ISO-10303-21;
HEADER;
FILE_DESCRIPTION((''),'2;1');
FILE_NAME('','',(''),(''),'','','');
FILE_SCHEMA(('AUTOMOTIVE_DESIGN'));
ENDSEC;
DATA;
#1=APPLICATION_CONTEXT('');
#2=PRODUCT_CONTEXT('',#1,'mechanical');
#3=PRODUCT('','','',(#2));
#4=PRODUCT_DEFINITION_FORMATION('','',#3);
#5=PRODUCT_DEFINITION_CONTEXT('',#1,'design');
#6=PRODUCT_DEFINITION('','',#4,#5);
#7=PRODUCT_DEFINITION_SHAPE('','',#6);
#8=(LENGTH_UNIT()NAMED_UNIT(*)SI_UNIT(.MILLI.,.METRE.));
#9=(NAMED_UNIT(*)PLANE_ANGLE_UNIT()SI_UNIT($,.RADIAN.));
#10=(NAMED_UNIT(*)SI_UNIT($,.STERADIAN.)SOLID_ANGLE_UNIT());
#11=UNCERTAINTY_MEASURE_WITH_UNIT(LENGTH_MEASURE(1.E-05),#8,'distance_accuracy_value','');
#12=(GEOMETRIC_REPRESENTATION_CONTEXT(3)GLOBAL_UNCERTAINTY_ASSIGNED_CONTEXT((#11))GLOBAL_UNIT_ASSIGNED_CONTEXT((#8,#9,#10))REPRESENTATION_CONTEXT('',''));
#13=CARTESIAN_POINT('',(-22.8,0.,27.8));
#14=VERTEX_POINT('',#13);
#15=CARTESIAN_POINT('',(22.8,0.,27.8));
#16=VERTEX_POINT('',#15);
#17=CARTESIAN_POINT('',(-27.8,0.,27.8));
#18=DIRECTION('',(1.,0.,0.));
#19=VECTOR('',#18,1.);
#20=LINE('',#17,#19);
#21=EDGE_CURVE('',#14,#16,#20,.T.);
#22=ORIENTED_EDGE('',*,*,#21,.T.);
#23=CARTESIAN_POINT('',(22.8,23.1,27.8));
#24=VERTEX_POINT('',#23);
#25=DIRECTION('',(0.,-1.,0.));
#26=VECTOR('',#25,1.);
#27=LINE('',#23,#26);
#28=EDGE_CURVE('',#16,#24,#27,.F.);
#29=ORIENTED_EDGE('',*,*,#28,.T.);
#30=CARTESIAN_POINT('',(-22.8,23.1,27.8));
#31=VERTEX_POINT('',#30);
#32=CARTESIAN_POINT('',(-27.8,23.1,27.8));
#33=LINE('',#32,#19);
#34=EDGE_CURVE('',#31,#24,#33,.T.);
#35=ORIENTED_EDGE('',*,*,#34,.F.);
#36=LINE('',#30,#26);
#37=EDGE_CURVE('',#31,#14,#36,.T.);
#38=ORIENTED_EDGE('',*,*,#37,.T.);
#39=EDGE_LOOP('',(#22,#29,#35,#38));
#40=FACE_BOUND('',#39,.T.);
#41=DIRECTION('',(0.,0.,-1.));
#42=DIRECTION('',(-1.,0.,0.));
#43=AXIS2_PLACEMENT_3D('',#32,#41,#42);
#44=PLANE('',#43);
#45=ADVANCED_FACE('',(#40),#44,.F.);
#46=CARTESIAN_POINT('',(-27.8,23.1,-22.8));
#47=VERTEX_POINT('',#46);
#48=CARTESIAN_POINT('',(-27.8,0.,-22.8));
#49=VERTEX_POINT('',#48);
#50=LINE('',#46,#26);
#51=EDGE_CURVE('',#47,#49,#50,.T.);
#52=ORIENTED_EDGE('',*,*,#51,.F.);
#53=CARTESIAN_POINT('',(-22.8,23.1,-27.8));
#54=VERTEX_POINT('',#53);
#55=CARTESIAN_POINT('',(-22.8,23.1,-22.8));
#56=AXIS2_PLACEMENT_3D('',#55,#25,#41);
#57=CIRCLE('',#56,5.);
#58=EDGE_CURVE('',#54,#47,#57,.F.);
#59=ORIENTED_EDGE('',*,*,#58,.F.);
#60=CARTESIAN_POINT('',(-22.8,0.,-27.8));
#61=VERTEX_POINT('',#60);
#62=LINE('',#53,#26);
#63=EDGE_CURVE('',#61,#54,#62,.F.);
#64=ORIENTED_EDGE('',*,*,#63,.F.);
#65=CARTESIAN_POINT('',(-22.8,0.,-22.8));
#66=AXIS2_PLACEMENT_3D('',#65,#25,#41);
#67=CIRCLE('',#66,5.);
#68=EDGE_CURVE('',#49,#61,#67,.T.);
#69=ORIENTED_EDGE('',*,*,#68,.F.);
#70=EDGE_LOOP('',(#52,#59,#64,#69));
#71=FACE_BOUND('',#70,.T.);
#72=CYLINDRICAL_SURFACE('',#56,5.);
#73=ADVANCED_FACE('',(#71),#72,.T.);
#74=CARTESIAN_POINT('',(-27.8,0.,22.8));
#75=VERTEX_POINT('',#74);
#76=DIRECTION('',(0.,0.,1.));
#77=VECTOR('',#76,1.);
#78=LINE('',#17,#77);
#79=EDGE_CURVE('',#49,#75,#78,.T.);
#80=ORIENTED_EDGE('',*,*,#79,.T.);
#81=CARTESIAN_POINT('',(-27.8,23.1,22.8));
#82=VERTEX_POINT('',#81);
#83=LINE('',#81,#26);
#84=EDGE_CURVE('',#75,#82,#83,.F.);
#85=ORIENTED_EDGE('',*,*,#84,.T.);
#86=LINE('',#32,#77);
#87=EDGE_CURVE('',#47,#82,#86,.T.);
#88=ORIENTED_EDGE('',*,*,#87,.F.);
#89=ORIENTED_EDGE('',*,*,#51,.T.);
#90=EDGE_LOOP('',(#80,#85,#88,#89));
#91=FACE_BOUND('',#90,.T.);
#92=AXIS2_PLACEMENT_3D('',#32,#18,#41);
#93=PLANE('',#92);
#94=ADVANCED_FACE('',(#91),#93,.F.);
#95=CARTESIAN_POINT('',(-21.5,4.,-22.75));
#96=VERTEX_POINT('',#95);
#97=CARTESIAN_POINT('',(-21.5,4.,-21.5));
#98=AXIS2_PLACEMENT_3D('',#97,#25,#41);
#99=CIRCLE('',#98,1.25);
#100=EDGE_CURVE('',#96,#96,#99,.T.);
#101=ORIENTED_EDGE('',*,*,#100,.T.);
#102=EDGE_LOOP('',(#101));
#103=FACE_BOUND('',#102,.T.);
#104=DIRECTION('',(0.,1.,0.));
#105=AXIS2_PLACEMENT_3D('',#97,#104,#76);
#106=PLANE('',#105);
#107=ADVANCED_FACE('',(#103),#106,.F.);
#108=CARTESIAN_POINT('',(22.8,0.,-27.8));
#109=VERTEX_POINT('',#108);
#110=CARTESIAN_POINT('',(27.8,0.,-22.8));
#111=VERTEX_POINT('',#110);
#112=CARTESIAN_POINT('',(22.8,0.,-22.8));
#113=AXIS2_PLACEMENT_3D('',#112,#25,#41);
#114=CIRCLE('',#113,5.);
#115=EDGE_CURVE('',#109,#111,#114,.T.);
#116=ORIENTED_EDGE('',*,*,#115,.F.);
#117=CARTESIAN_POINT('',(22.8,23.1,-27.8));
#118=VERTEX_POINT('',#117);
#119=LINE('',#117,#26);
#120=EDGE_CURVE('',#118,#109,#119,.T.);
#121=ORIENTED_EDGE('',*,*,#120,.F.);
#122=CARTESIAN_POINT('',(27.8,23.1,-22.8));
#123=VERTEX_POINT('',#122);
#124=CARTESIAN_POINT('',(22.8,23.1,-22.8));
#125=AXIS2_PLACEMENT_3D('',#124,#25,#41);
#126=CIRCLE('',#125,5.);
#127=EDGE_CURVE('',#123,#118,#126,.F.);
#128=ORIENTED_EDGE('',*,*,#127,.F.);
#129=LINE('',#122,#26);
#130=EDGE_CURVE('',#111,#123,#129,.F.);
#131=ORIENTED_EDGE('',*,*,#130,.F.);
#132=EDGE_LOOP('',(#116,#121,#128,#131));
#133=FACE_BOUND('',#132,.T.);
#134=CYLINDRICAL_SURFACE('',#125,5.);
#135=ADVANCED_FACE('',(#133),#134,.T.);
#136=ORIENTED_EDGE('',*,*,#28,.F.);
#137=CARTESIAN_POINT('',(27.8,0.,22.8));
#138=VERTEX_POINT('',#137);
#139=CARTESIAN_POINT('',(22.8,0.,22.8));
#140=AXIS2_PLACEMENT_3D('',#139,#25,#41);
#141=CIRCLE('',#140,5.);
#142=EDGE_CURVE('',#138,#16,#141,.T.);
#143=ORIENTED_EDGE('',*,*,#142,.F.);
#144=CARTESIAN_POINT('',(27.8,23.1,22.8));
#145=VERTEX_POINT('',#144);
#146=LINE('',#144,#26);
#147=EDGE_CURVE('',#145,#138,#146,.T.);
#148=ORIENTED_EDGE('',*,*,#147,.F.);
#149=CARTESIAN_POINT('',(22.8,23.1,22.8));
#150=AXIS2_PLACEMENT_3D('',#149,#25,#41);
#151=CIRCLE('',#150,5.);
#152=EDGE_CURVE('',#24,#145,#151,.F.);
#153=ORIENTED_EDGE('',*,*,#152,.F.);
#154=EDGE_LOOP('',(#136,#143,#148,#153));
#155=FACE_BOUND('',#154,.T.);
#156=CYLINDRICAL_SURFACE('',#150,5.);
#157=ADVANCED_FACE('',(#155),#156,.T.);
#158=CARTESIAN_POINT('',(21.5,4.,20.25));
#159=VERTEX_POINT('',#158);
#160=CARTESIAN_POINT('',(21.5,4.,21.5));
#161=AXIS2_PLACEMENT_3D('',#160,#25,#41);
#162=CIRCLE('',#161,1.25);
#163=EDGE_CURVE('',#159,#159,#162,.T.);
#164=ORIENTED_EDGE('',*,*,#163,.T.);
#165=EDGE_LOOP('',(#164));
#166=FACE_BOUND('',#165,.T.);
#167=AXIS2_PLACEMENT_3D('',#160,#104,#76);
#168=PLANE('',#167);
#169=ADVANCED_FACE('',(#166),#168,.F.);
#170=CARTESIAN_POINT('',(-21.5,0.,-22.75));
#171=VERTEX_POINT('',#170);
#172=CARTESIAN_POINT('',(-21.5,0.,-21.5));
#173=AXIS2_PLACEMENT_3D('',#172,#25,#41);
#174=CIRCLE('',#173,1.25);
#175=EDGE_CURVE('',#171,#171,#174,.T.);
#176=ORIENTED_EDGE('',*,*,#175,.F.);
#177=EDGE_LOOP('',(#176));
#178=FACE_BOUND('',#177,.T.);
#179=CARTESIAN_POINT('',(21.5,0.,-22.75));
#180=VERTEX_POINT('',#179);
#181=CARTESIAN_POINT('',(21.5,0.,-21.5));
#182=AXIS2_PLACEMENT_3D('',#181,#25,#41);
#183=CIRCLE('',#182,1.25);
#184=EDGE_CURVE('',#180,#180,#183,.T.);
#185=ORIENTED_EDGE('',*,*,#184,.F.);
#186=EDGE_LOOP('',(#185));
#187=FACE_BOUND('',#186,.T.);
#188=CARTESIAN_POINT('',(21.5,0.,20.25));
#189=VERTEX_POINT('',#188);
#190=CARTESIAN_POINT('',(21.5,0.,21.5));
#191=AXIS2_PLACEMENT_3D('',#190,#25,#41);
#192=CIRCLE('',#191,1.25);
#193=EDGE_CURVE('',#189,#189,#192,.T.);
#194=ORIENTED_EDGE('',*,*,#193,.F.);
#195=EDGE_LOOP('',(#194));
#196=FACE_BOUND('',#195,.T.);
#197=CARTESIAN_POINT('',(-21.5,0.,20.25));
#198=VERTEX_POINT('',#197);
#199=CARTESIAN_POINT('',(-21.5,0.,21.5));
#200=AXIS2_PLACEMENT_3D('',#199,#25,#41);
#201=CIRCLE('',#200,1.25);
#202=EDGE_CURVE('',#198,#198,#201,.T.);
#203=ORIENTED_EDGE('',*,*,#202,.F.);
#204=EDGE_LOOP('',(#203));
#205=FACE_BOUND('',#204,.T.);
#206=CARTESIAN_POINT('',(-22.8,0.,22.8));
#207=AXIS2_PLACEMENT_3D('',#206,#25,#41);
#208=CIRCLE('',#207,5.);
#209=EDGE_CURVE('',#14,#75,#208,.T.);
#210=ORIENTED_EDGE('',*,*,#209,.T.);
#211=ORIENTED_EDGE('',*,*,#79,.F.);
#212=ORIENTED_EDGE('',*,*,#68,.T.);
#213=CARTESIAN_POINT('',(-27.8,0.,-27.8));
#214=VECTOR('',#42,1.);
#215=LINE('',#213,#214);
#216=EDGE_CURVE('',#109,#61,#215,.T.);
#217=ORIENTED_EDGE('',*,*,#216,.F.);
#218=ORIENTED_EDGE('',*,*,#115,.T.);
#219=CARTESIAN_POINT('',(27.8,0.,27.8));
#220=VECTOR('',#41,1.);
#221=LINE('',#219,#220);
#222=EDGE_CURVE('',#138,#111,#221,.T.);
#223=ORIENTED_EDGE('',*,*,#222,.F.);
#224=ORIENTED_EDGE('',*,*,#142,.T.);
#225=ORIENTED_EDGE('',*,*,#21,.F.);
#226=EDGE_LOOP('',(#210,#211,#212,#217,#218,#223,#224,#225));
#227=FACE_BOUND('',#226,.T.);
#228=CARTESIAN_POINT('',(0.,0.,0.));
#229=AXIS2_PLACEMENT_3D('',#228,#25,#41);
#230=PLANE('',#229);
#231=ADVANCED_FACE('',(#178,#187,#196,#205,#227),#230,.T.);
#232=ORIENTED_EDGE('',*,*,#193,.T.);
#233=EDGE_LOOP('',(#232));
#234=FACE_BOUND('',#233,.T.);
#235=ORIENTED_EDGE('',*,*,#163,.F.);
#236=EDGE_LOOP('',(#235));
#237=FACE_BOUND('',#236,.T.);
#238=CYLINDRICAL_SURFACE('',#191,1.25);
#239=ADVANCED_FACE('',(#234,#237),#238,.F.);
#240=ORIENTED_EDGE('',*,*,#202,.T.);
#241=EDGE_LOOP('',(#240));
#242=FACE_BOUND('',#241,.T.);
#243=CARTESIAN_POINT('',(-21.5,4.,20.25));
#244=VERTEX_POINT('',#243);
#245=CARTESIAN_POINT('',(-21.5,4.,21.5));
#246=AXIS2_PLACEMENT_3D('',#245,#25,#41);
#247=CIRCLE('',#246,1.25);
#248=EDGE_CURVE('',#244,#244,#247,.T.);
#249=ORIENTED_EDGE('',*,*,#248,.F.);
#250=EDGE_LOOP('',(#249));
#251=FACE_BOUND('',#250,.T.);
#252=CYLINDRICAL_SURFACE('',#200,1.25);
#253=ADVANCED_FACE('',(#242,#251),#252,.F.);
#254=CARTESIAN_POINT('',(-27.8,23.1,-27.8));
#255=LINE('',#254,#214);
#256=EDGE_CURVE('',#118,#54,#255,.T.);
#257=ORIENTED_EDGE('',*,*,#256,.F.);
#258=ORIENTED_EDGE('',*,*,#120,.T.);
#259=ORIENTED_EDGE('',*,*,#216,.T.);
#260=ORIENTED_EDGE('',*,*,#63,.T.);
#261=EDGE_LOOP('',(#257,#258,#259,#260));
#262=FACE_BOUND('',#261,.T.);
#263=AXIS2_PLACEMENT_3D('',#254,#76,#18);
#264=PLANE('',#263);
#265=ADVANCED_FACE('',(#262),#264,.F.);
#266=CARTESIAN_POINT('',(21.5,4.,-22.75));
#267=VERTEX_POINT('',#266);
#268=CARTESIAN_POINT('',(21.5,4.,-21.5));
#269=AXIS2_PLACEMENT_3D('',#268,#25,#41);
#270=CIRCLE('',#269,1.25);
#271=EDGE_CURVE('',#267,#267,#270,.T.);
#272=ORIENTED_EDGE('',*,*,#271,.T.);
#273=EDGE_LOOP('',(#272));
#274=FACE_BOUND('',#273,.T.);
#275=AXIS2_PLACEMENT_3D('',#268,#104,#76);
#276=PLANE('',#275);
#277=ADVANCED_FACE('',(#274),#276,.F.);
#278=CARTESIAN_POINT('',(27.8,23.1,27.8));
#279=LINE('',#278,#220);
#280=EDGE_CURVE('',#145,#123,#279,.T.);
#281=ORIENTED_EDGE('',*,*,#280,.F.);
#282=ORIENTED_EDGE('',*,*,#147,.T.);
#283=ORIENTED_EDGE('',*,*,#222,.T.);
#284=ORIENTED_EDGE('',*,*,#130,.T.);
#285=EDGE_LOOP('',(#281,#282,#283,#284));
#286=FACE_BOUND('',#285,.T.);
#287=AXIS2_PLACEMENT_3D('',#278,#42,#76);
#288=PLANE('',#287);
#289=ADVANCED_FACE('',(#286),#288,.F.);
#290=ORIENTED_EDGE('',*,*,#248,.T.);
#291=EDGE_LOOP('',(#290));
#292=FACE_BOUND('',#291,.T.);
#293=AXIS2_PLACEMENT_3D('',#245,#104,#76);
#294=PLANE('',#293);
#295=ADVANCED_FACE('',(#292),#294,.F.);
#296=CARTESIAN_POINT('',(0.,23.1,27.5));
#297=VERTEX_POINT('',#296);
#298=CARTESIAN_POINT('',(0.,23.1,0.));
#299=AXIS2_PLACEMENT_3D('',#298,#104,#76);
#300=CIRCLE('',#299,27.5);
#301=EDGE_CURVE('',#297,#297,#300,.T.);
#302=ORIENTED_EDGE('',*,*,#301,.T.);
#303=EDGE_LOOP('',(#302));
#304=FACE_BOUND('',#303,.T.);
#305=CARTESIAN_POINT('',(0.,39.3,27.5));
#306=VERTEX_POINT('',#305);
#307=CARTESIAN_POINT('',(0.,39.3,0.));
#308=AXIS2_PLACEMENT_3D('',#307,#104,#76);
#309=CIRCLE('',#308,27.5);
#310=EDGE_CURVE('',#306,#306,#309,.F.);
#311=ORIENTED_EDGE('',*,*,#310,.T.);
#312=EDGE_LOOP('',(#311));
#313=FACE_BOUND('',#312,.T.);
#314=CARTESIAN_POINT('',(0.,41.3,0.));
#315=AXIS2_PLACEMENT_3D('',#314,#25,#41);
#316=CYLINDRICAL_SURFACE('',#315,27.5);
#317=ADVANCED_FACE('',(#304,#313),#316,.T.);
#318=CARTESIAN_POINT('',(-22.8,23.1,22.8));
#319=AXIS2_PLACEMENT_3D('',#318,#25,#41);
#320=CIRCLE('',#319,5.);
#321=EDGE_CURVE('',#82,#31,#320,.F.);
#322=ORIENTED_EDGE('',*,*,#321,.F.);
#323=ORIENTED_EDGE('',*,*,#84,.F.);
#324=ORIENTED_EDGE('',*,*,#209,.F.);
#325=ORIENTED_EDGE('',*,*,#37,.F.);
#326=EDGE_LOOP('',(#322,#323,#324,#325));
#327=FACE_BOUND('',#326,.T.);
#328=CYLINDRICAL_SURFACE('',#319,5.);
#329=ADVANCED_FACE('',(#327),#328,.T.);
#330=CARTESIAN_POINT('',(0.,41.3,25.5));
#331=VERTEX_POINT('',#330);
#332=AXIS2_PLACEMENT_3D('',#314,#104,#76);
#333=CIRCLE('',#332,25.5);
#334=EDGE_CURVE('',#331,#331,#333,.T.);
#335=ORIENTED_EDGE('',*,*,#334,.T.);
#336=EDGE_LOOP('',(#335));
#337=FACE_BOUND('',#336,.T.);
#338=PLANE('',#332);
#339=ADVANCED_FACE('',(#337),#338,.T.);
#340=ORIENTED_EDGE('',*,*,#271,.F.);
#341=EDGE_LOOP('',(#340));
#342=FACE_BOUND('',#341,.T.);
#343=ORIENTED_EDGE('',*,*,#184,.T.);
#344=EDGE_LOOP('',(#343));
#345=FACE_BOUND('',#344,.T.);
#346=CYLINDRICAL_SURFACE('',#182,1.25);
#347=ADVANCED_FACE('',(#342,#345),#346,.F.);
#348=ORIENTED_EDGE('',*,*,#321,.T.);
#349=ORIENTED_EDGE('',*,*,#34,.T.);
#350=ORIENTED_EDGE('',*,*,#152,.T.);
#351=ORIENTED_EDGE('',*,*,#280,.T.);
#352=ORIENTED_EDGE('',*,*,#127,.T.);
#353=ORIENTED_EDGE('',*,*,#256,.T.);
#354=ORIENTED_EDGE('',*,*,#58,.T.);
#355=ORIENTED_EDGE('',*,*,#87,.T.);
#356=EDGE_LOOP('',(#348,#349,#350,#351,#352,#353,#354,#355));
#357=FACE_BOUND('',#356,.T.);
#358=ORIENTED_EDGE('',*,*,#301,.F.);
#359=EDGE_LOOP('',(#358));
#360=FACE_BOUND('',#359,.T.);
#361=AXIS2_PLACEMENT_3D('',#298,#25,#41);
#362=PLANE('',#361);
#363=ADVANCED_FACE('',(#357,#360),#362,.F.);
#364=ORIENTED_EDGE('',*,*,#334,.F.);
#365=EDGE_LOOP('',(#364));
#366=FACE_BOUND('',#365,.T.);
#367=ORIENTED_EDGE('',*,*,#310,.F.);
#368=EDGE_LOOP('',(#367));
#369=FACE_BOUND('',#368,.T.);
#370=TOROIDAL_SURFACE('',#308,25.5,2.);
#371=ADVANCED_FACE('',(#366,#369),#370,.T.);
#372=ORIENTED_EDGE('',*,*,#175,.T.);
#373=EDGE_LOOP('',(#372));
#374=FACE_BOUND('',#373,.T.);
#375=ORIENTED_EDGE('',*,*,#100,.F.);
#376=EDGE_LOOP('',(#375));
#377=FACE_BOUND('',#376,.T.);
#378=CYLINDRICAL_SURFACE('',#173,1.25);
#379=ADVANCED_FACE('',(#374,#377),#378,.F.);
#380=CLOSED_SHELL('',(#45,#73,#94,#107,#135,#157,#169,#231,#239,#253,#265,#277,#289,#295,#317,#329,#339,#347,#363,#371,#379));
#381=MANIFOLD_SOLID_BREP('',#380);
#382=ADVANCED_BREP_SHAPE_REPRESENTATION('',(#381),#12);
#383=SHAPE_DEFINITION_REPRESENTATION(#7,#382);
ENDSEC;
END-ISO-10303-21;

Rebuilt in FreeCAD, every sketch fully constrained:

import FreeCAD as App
import Part
import Sketcher
from FreeCAD import Vector
Q = App.Units.Quantity


def edges_at(feature, points):
    """Names of the edges that pass closest to the given points."""
    edges = feature.Shape.Edges
    near = lambda p: min(range(len(edges)), key=lambda i: edges[i].distToShape(Part.Vertex(*p))[0])
    return sorted({f"Edge{near(p) + 1}" for p in points})


def add_polygon(sketch, points):
    """Adds a closed chain of lines whose ends are joined by coincident constraints."""
    first, n = sketch.GeometryCount, len(points)
    for a, b in zip(points, points[1:] + points[:1]):
        sketch.addGeometry(Part.LineSegment(App.Vector(*a, 0), App.Vector(*b, 0)), False)
    for i in range(n):
        sketch.addConstraint(Sketcher.Constraint("Coincident", first + i, 2, first + (i + 1) % n, 1))

doc = App.newDocument("Part")
body = doc.addObject("PartDesign::Body", "Body")

# Sketch on XZ plane
sketch1 = body.newObject("Sketcher::SketchObject", "Sketch")
sketch1.AttachmentSupport = (doc.getObject("XZ_Plane"), [""])
sketch1.MapMode = "FlatFace"
add_polygon(sketch1, [(-28, -28), (-28, 28), (28, 28), (28, -28)])  # lines 0-3
sketch1.addConstraint(Sketcher.Constraint("Vertical", 0))
sketch1.addConstraint(Sketcher.Constraint("Horizontal", 1))
sketch1.addConstraint(Sketcher.Constraint("Vertical", 2))
sketch1.addConstraint(Sketcher.Constraint("Horizontal", 3))
sketch1.addConstraint(Sketcher.Constraint("Symmetric", 0, 2, 2, 2, -1, 1))
sketch1.addConstraint(Sketcher.Constraint("Equal", 3, 0))
sketch1.addConstraint(Sketcher.Constraint("DistanceX", 1, 1, 1, 2, Q("55.6 mm")))
pad1 = body.newObject("PartDesign::Pad", "Pad")
pad1.Profile = sketch1
pad1.Length = 23.1
pad1.Reversed = True

# Sketch on XZ plane
sketch2 = body.newObject("Sketcher::SketchObject", "Sketch001")
sketch2.AttachmentSupport = (doc.getObject("XZ_Plane"), [""])
sketch2.MapMode = "FlatFace"
sketch2.AttachmentOffset = App.Placement(Vector(0, 0, -23.1), App.Rotation())
sketch2.addGeometry(Part.Circle(Vector(0, 0, 0), Vector(0, 0, 1), 28), False)
sketch2.addConstraint(Sketcher.Constraint("Coincident", 0, 3, -1, 1))
sketch2.addConstraint(Sketcher.Constraint("Diameter", 0, Q("55 mm")))
pad2 = body.newObject("PartDesign::Pad", "Pad001")
pad2.Profile = sketch2
pad2.Length = 18.2
pad2.Reversed = True

# Sketch on XZ plane
sketch3 = body.newObject("Sketcher::SketchObject", "Sketch002")
sketch3.AttachmentSupport = (doc.getObject("XZ_Plane"), [""])
sketch3.MapMode = "FlatFace"
sketch3.addGeometry(Part.Circle(Vector(21.5, -21.5, 0), Vector(0, 0, 1), 1.2), False)
sketch3.addGeometry(Part.Circle(Vector(-21.5, -21.5, 0), Vector(0, 0, 1), 1.2), False)
sketch3.addGeometry(Part.Circle(Vector(-21.5, 21.5, 0), Vector(0, 0, 1), 1.2), False)
sketch3.addGeometry(Part.Circle(Vector(21.5, 21.5, 0), Vector(0, 0, 1), 1.2), False)
sketch3.addConstraint(Sketcher.Constraint("Equal", 0, 1))
sketch3.addConstraint(Sketcher.Constraint("Equal", 1, 2))
sketch3.addConstraint(Sketcher.Constraint("Equal", 2, 3))
sketch3.addConstraint(Sketcher.Constraint("Symmetric", 0, 3, 2, 3, -1, 1))
sketch3.addConstraint(Sketcher.Constraint("Symmetric", 1, 3, 3, 3, -1, 1))
sketch3.addConstraint(Sketcher.Constraint("Symmetric", 0, 3, 1, 3, -2))
sketch3.addConstraint(Sketcher.Constraint("Diameter", 0, Q("2.5 mm")))
sketch3.addConstraint(Sketcher.Constraint("DistanceX", 1, 3, 0, 3, Q("43 mm")))
sketch3.addConstraint(Sketcher.Constraint("DistanceY", 1, 3, 2, 3, Q("43 mm")))
doc.recompute()
hole = body.newObject("PartDesign::Hole", "Hole")
hole.Profile = sketch3
hole.ThreadType = "None"
hole.Diameter = 2.5
hole.DepthType = "Dimension"
hole.Depth = 4
hole.DrillPoint = "Flat"
doc.recompute()

fillet = body.newObject("PartDesign::Fillet", "Fillet")
fillet.Base = (hole, edges_at(hole, [
    (27.8, 11.55, 27.8),
    (-27.8, 11.55, 27.8),
    (-27.8, 11.55, -27.8),
    (27.8, 11.55, -27.8),
]))
fillet.Radius = 5
doc.recompute()

fillet2 = body.newObject("PartDesign::Fillet", "Fillet001")
fillet2.Base = (fillet, edges_at(fillet, [(0, 41.3, -27.5)]))
fillet2.Radius = 2

doc.recompute()
